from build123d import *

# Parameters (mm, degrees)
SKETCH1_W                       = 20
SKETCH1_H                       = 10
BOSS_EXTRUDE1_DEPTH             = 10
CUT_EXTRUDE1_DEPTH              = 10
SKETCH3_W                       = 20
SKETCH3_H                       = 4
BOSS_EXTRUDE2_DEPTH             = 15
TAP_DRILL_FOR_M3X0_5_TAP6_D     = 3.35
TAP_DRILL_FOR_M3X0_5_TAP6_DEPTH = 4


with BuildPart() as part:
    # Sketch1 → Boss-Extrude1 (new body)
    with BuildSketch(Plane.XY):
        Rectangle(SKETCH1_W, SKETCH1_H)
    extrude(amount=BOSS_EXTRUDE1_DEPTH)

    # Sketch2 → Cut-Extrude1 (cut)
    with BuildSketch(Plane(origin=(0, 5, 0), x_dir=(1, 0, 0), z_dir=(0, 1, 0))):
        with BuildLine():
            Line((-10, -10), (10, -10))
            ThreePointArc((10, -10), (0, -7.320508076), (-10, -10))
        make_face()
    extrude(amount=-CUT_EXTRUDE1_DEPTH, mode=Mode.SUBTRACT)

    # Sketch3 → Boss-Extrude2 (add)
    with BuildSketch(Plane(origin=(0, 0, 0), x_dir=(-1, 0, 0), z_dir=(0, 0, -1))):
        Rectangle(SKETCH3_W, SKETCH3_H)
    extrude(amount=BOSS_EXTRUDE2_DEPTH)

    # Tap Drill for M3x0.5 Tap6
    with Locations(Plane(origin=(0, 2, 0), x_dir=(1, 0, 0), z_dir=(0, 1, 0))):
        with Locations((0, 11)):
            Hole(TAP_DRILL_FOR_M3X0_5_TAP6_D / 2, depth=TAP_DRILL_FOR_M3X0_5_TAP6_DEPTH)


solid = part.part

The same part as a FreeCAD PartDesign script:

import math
import FreeCAD as App
import Part
import Sketcher
from FreeCAD import Vector

doc = App.newDocument("Part")
params = doc.addObject("Spreadsheet::Sheet", "Params")
for row, (alias, value) in enumerate([
    ("sketch1_width", "20 mm"),
    ("sketch1_height", "10 mm"),
    ("pad1_length", "10 mm"),
    ("sketch2_radius", "20 mm"),
    ("sketch2_width", "20 mm"),
    ("pocket1_length", "10 mm"),
    ("sketch3_width", "20 mm"),
    ("sketch3_height", "4 mm"),
    ("pad2_length", "15 mm"),
    ("sketch4_diameter", "3.35 mm"),
    ("hole_diameter", "3.35 mm"),
    ("hole_depth", "4 mm"),
], start=1):
    params.set(f"A{row}", alias)
    params.set(f"B{row}", "=" + value)
    params.setAlias(f"B{row}", alias)

body = doc.addObject("PartDesign::Body", "Body")

sketch1 = doc.addObject("Sketcher::SketchObject", "Sketch")
body.addObject(sketch1)
sketch1.AttachmentSupport = (doc.XY_Plane, [""])
sketch1.MapMode = "FlatFace"
sketch1.addGeometry(Part.LineSegment(Vector(-10, 5, 0), Vector(-10, -5, 0)), False)
sketch1.addGeometry(Part.LineSegment(Vector(-10, -5, 0), Vector(10, -5, 0)), False)
sketch1.addGeometry(Part.LineSegment(Vector(10, -5, 0), Vector(10, 5, 0)), False)
sketch1.addGeometry(Part.LineSegment(Vector(10, 5, 0), Vector(-10, 5, 0)), False)
sketch1.addConstraint(Sketcher.Constraint("Coincident", 0, 2, 1, 1))
sketch1.addConstraint(Sketcher.Constraint("Coincident", 1, 2, 2, 1))
sketch1.addConstraint(Sketcher.Constraint("Coincident", 2, 2, 3, 1))
sketch1.addConstraint(Sketcher.Constraint("Coincident", 3, 2, 0, 1))
sketch1.addConstraint(Sketcher.Constraint("Vertical", 0))
sketch1.addConstraint(Sketcher.Constraint("Horizontal", 1))
sketch1.addConstraint(Sketcher.Constraint("Vertical", 2))
sketch1.addConstraint(Sketcher.Constraint("Horizontal", 3))
sketch1.addConstraint(Sketcher.Constraint("Symmetric", 0, 2, 2, 2, -1, 1))
sketch1.addConstraint(Sketcher.Constraint("DistanceX", 1, 1, 1, 2, 20.0))
sketch1.addConstraint(Sketcher.Constraint("DistanceY", 0, 2, 0, 1, 10.0))
sketch1.setExpression("Constraints[9]", "Params.sketch1_width")
sketch1.setExpression("Constraints[10]", "Params.sketch1_height")
pad1 = doc.addObject("PartDesign::Pad", "Pad")
body.addObject(pad1)
pad1.Profile = sketch1
pad1.setExpression("Length", "Params.pad1_length")

sketch2 = doc.addObject("Sketcher::SketchObject", "Sketch001")
body.addObject(sketch2)
sketch2.AttachmentSupport = (doc.XZ_Plane, [""])
sketch2.MapMode = "FlatFace"
sketch2.AttachmentOffset = App.Placement(Vector(0, 0, -5), App.Rotation())
sketch2.addGeometry(Part.LineSegment(Vector(-10, 10, 0), Vector(10, 10, 0)), False)
sketch2.addGeometry(Part.ArcOfCircle(Part.Circle(Vector(0, 27, 0), Vector(0, 0, 1), 20), math.radians(-120), math.radians(-60)), False)
sketch2.addConstraint(Sketcher.Constraint("Coincident", 0, 1, 1, 1))
sketch2.addConstraint(Sketcher.Constraint("Coincident", 1, 2, 0, 2))
sketch2.addConstraint(Sketcher.Constraint("Horizontal", 0))
sketch2.addConstraint(Sketcher.Constraint("PointOnObject", 1, 3, -2))
sketch2.addConstraint(Sketcher.Constraint("Radius", 1, 20.0))
sketch2.addConstraint(Sketcher.Constraint("DistanceX", 0, 1, 0, 2, 20.0))
sketch2.addConstraint(Sketcher.Constraint("DistanceY", -1, 1, 0, 1, 10.0))
sketch2.setExpression("Constraints[4]", "Params.sketch2_radius")
sketch2.setExpression("Constraints[5]", "Params.sketch2_width")
pocket1 = doc.addObject("PartDesign::Pocket", "Pocket")
body.addObject(pocket1)
pocket1.Profile = sketch2
pocket1.setExpression("Length", "Params.pocket1_length")
pocket1.Reversed = True

sketch3 = doc.addObject("Sketcher::SketchObject", "Sketch002")
body.addObject(sketch3)
sketch3.AttachmentSupport = (doc.XY_Plane, [""])
sketch3.MapMode = "FlatFace"
sketch3.addGeometry(Part.LineSegment(Vector(10, 2, 0), Vector(10, -2, 0)), False)
sketch3.addGeometry(Part.LineSegment(Vector(10, -2, 0), Vector(-10, -2, 0)), False)
sketch3.addGeometry(Part.LineSegment(Vector(-10, -2, 0), Vector(-10, 2, 0)), False)
sketch3.addGeometry(Part.LineSegment(Vector(-10, 2, 0), Vector(10, 2, 0)), False)
sketch3.addConstraint(Sketcher.Constraint("Coincident", 0, 2, 1, 1))
sketch3.addConstraint(Sketcher.Constraint("Coincident", 1, 2, 2, 1))
sketch3.addConstraint(Sketcher.Constraint("Coincident", 2, 2, 3, 1))
sketch3.addConstraint(Sketcher.Constraint("Coincident", 3, 2, 0, 1))
sketch3.addConstraint(Sketcher.Constraint("Vertical", 0))
sketch3.addConstraint(Sketcher.Constraint("Horizontal", 1))
sketch3.addConstraint(Sketcher.Constraint("Vertical", 2))
sketch3.addConstraint(Sketcher.Constraint("Horizontal", 3))
sketch3.addConstraint(Sketcher.Constraint("Symmetric", 0, 2, 2, 2, -1, 1))
sketch3.addConstraint(Sketcher.Constraint("DistanceX", 1, 2, 1, 1, 20.0))
sketch3.addConstraint(Sketcher.Constraint("DistanceY", 0, 2, 0, 1, 4.0))
sketch3.setExpression("Constraints[9]", "Params.sketch3_width")
sketch3.setExpression("Constraints[10]", "Params.sketch3_height")
pad2 = doc.addObject("PartDesign::Pad", "Pad001")
body.addObject(pad2)
pad2.Profile = sketch3
pad2.setExpression("Length", "Params.pad2_length")
pad2.Reversed = True

sketch4 = doc.addObject("Sketcher::SketchObject", "Sketch003")
body.addObject(sketch4)
sketch4.AttachmentSupport = (doc.XZ_Plane, [""])
sketch4.MapMode = "FlatFace"
sketch4.AttachmentOffset = App.Placement(Vector(0, 0, -2), App.Rotation())
sketch4.addGeometry(Part.Circle(Vector(0, -11, 0), Vector(0, 0, 1), 1.7), False)
sketch4.addConstraint(Sketcher.Constraint("PointOnObject", 0, 3, -2))
sketch4.addConstraint(Sketcher.Constraint("Diameter", 0, 3.35))
sketch4.addConstraint(Sketcher.Constraint("DistanceY", 0, 3, -1, 1, 11.0))
sketch4.setExpression("Constraints[1]", "Params.sketch4_diameter")
doc.recompute()
hole = doc.addObject("PartDesign::Hole", "Hole")
body.addObject(hole)
hole.Profile = sketch4
hole.ThreadType = "None"
hole.setExpression("Diameter", "Params.hole_diameter")
hole.DepthType = "Dimension"
hole.setExpression("Depth", "Params.hole_depth")
hole.DrillPoint = "Flat"
hole.Reversed = True

doc.recompute()
